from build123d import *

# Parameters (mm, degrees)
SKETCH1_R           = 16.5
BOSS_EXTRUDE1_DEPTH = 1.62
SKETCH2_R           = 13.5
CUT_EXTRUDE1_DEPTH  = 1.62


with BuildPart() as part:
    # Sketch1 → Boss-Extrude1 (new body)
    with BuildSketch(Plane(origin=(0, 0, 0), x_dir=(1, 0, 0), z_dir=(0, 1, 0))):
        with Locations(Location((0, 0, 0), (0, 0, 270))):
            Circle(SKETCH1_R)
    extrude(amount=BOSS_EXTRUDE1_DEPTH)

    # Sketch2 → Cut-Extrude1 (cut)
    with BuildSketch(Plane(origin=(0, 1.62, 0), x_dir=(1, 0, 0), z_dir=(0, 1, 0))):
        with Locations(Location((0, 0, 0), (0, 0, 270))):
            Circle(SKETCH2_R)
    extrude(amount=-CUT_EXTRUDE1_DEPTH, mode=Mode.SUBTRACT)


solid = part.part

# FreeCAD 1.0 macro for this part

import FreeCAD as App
import Part
import Sketcher
from FreeCAD import Vector
Q = App.Units.Quantity

doc = App.newDocument("Part")
params = doc.addObject("Spreadsheet::Sheet", "Params")
for row, (alias, value) in enumerate([
    ("sketch1_diameter", "33 mm"),
    ("pad1_length", "1.62 mm"),
    ("sketch2_diameter", "27 mm"),
    ("pocket1_length", "1.62 mm"),
], start=1):
    params.set(f"A{row}", alias)
    params.set(f"B{row}", "=" + value)
    params.setAlias(f"B{row}", alias)

body = doc.addObject("PartDesign::Body", "Body")

# Sketch on XZ plane
sketch1 = body.newObject("Sketcher::SketchObject", "Sketch")
sketch1.AttachmentSupport = (doc.getObject("XZ_Plane"), [""])
sketch1.MapMode = "FlatFace"
sketch1.addGeometry(Part.Circle(Vector(0, 0, 0), Vector(0, 0, 1), 16), False)
sketch1.addConstraint(Sketcher.Constraint("Coincident", 0, 3, -1, 1))
sketch1.addConstraint(Sketcher.Constraint("Diameter", 0, Q("33 mm")))
sketch1.setExpression("Constraints[1]", "Params.sketch1_diameter")
pad1 = body.newObject("PartDesign::Pad", "Pad")
pad1.Profile = sketch1
pad1.setExpression("Length", "Params.pad1_length")
pad1.Reversed = True

# Sketch on XZ plane
sketch2 = body.newObject("Sketcher::SketchObject", "Sketch001")
sketch2.AttachmentSupport = (doc.getObject("XZ_Plane"), [""])
sketch2.MapMode = "FlatFace"
sketch2.AttachmentOffset = App.Placement(Vector(0, 0, -1.62), App.Rotation())
sketch2.addGeometry(Part.Circle(Vector(0, 0, 0), Vector(0, 0, 1), 14), False)
sketch2.addConstraint(Sketcher.Constraint("Coincident", 0, 3, -1, 1))
sketch2.addConstraint(Sketcher.Constraint("Diameter", 0, Q("27 mm")))
sketch2.setExpression("Constraints[1]", "Params.sketch2_diameter")
pocket1 = body.newObject("PartDesign::Pocket", "Pocket")
pocket1.Profile = sketch2
pocket1.setExpression("Length", "Params.pocket1_length")
pocket1.Reversed = True

doc.recompute()
